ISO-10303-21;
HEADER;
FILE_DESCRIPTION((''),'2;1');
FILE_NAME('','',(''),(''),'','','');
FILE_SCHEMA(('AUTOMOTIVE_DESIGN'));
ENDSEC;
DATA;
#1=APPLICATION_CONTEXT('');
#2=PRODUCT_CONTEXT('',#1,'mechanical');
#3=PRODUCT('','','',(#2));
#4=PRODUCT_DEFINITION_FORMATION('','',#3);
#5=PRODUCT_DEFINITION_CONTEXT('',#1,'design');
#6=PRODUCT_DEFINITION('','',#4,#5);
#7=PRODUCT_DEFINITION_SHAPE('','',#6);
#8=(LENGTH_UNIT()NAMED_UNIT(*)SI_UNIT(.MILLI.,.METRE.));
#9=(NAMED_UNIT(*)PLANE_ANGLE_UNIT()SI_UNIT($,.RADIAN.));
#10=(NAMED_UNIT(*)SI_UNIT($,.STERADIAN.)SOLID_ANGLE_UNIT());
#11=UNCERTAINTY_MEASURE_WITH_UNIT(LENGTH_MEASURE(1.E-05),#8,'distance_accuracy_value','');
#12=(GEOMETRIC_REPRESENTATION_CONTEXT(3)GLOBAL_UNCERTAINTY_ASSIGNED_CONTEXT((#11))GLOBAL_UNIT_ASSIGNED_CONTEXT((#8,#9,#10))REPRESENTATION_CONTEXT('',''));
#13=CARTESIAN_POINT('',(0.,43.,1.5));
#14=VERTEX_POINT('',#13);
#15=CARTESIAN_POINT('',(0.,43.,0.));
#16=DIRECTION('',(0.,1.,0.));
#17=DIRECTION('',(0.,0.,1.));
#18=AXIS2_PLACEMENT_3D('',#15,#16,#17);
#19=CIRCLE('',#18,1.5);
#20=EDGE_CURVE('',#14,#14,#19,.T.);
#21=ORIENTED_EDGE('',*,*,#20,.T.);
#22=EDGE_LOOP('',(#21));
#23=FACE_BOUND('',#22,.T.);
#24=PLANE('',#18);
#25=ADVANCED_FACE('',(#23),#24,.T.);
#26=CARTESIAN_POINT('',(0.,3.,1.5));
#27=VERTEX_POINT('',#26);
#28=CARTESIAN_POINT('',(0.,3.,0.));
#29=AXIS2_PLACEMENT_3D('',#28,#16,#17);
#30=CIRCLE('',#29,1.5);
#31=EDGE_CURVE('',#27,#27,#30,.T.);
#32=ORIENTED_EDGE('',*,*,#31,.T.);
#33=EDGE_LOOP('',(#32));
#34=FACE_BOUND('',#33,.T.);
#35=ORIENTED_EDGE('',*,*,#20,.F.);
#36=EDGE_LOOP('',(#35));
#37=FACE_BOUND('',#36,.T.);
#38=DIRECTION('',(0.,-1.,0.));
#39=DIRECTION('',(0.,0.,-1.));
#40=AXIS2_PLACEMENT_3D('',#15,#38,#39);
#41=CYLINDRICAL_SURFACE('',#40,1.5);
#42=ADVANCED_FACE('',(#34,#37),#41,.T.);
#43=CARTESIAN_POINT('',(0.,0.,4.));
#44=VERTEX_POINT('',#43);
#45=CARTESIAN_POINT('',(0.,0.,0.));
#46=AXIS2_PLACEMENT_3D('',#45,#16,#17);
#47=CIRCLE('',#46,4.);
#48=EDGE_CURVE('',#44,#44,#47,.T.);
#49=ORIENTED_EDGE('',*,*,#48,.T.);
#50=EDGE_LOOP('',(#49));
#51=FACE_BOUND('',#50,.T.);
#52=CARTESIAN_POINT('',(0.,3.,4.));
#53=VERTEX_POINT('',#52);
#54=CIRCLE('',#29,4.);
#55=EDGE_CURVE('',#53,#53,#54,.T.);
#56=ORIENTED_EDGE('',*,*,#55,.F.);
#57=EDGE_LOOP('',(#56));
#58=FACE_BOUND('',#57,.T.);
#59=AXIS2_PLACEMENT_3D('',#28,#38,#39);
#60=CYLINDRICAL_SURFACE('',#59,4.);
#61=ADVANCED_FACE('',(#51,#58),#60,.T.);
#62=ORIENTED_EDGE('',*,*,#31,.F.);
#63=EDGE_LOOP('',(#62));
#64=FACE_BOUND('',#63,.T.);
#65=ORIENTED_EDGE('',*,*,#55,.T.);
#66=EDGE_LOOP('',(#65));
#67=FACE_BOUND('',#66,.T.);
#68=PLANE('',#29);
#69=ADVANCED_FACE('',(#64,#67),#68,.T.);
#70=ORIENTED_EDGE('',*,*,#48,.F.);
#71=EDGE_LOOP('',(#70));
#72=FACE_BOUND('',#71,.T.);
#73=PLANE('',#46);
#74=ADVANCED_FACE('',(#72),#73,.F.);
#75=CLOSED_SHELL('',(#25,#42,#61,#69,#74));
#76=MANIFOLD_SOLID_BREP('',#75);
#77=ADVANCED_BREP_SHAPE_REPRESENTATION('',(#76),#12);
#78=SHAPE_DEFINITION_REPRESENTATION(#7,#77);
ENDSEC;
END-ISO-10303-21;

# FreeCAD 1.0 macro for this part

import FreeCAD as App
import Part
import Sketcher
from FreeCAD import Vector
Q = App.Units.Quantity

doc = App.newDocument("Part")
params = doc.addObject("Spreadsheet::Sheet", "Params")
for row, (alias, value) in enumerate([
    ("sketch1_diameter", "8 mm"),
    ("pad1_length", "3 mm"),
    ("sketch2_diameter", "3 mm"),
    ("pad2_length", "40 mm"),
], start=1):
    params.set(f"A{row}", alias)
    params.set(f"B{row}", "=" + value)
    params.setAlias(f"B{row}", alias)

body = doc.addObject("PartDesign::Body", "Body")

# Sketch on XZ plane
sketch1 = doc.addObject("Sketcher::SketchObject", "Sketch")
body.addObject(sketch1)
sketch1.AttachmentSupport = (doc.XZ_Plane, [""])
sketch1.MapMode = "FlatFace"
sketch1.addGeometry(Part.Circle(Vector(0, 0, 0), Vector(0, 0, 1), 4), False)
sketch1.addConstraint([
    Sketcher.Constraint("Coincident", 0, 3, -1, 1),
    Sketcher.Constraint("Diameter", 0, Q("8 mm")),
])
sketch1.setExpression("Constraints[1]", "Params.sketch1_diameter")
pad1 = doc.addObject("PartDesign::Pad", "Pad")
body.addObject(pad1)
pad1.Profile = sketch1
pad1.setExpression("Length", "Params.pad1_length")
pad1.Reversed = True

# Sketch on XZ plane
sketch2 = doc.addObject("Sketcher::SketchObject", "Sketch001")
body.addObject(sketch2)
sketch2.AttachmentSupport = (doc.XZ_Plane, [""])
sketch2.MapMode = "FlatFace"
sketch2.AttachmentOffset = App.Placement(Vector(0, 0, -3), App.Rotation())
sketch2.addGeometry(Part.Circle(Vector(0, 0, 0), Vector(0, 0, 1), 1.5), False)
sketch2.addConstraint([
    Sketcher.Constraint("Coincident", 0, 3, -1, 1),
    Sketcher.Constraint("Diameter", 0, Q("3 mm")),
])
sketch2.setExpression("Constraints[1]", "Params.sketch2_diameter")
pad2 = doc.addObject("PartDesign::Pad", "Pad001")
body.addObject(pad2)
pad2.Profile = sketch2
pad2.setExpression("Length", "Params.pad2_length")
pad2.Reversed = True

doc.recompute()
